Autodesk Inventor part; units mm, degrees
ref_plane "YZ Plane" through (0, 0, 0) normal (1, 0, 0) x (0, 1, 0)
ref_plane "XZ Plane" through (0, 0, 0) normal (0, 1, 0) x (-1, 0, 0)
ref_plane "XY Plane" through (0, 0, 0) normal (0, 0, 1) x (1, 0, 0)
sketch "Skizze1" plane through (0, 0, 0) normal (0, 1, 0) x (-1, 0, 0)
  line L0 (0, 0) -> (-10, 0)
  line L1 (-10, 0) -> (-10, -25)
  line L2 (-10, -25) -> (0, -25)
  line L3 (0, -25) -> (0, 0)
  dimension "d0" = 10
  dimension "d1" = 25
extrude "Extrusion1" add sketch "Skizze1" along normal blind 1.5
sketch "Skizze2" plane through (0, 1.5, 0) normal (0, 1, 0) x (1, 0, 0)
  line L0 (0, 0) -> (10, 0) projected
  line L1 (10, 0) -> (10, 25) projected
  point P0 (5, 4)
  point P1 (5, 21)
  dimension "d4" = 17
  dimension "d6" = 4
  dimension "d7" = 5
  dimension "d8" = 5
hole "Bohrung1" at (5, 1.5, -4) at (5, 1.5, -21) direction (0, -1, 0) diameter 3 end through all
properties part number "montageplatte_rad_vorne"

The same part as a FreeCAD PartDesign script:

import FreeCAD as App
import Part
import Sketcher
from FreeCAD import Vector

doc = App.newDocument("Part")
body = doc.addObject("PartDesign::Body", "Body")

sketch1 = body.newObject("Sketcher::SketchObject", "Sketch")
sketch1.AttachmentSupport = (doc.getObject("XZ_Plane"), [""])
sketch1.MapMode = "FlatFace"
sketch1.addGeometry(Part.LineSegment(Vector(0, -25, 0), Vector(0, 0, 0)), False)
sketch1.addGeometry(Part.LineSegment(Vector(0, 0, 0), Vector(10, 0, 0)), False)
sketch1.addGeometry(Part.LineSegment(Vector(10, 0, 0), Vector(10, -25, 0)), False)
sketch1.addGeometry(Part.LineSegment(Vector(10, -25, 0), Vector(0, -25, 0)), False)
sketch1.addConstraint(Sketcher.Constraint("Coincident", 0, 2, 1, 1))
sketch1.addConstraint(Sketcher.Constraint("Coincident", 1, 2, 2, 1))
sketch1.addConstraint(Sketcher.Constraint("Coincident", 2, 2, 3, 1))
sketch1.addConstraint(Sketcher.Constraint("Coincident", 3, 2, 0, 1))
sketch1.addConstraint(Sketcher.Constraint("Vertical", 0))
sketch1.addConstraint(Sketcher.Constraint("Horizontal", 1))
sketch1.addConstraint(Sketcher.Constraint("Vertical", 2))
sketch1.addConstraint(Sketcher.Constraint("Horizontal", 3))
sketch1.addConstraint(Sketcher.Constraint("Coincident", 0, 2, -1, 1))
sketch1.addConstraint(Sketcher.Constraint("DistanceX", 1, 1, 1, 2, 10.0))
sketch1.addConstraint(Sketcher.Constraint("DistanceY", 0, 1, 0, 2, 25.0))
pad1 = body.newObject("PartDesign::Pad", "Pad")
pad1.Profile = sketch1
pad1.Length = 1.5
pad1.Reversed = True

sketch2 = body.newObject("Sketcher::SketchObject", "Sketch001")
sketch2.AttachmentSupport = (doc.getObject("XZ_Plane"), [""])
sketch2.MapMode = "FlatFace"
sketch2.AttachmentOffset = App.Placement(Vector(0, 0, -1.5), App.Rotation())
sketch2.addGeometry(Part.Circle(Vector(5, -4, 0), Vector(0, 0, 1), 1.5), False)
sketch2.addGeometry(Part.Circle(Vector(5, -21, 0), Vector(0, 0, 1), 1.5), False)
sketch2.addConstraint(Sketcher.Constraint("Equal", 0, 1))
sketch2.addConstraint(Sketcher.Constraint("Vertical", 0, 3, 1, 3))
sketch2.addConstraint(Sketcher.Constraint("Diameter", 0, 3.0))
sketch2.addConstraint(Sketcher.Constraint("DistanceX", -1, 1, 0, 3, 5.0))
sketch2.addConstraint(Sketcher.Constraint("DistanceY", 0, 3, -1, 1, 4.0))
sketch2.addConstraint(Sketcher.Constraint("DistanceY", 1, 3, -1, 1, 21.0))
doc.recompute()
hole = body.newObject("PartDesign::Hole", "Hole")
hole.Profile = sketch2
hole.ThreadType = "None"
hole.Diameter = 3
hole.DepthType = "ThroughAll"
hole.Reversed = True

doc.recompute()
